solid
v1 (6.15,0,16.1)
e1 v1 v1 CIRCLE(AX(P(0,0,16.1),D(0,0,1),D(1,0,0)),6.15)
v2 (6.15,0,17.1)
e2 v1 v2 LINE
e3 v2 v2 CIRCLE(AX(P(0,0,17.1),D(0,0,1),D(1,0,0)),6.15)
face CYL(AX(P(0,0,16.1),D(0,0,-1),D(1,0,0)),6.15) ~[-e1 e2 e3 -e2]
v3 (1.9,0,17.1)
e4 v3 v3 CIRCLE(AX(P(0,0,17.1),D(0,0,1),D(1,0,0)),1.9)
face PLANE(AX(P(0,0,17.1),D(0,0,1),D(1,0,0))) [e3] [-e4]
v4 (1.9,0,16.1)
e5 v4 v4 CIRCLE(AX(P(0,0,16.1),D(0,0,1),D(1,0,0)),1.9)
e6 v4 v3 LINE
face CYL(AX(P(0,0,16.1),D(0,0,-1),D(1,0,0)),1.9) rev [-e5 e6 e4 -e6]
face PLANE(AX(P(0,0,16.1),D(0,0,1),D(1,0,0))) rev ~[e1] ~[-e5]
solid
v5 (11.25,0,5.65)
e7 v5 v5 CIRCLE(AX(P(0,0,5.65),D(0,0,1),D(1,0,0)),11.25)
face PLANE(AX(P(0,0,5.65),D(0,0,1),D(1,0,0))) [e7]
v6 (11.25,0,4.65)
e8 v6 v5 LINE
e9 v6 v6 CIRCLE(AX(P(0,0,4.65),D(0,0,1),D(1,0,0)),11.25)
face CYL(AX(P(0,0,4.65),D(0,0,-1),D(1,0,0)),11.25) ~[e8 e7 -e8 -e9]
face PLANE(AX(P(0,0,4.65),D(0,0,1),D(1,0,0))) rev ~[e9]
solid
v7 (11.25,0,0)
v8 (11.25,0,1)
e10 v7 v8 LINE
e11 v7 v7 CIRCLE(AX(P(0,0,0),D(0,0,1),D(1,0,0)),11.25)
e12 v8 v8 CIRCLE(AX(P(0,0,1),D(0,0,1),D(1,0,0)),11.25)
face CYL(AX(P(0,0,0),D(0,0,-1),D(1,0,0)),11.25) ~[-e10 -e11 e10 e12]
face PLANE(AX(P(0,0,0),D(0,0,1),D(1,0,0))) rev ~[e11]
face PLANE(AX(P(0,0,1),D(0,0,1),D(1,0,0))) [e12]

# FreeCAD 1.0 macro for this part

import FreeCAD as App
import Part
import Sketcher
Q = App.Units.Quantity

doc = App.newDocument("Part")
body = doc.addObject("PartDesign::Body", "Body")

sketch1 = body.newObject("Sketcher::SketchObject", "Sketch")
sketch1.AttachmentSupport = (doc.getObject("XY_Plane"), [""])
sketch1.MapMode = "FlatFace"
sketch1.addGeometry(Part.Circle(App.Vector(0, 0, 0), App.Vector(0, 0, 1), 11), False)
sketch1.addConstraint([
    Sketcher.Constraint("Coincident", 0, 3, -1, 1),
    Sketcher.Constraint("Diameter", 0, Q("22.5 mm")),
])
pad1 = body.newObject("PartDesign::Pad", "Pad")
pad1.Profile = sketch1
pad1.Length = 1
body2 = doc.addObject("PartDesign::Body", "Body001")

sketch2 = body2.newObject("Sketcher::SketchObject", "Sketch001")
sketch2.AttachmentSupport = (doc.getObject("XY_Plane001"), [""])
sketch2.MapMode = "FlatFace"
sketch2.AttachmentOffset = App.Placement(App.Vector(0, 0, 4.65), App.Rotation())
sketch2.addGeometry(Part.Circle(App.Vector(0, 0, 0), App.Vector(0, 0, 1), 11), False)
sketch2.addConstraint([
    Sketcher.Constraint("Coincident", 0, 3, -1, 1),
    Sketcher.Constraint("Diameter", 0, Q("22.5 mm")),
])
pad2 = body2.newObject("PartDesign::Pad", "Pad001")
pad2.Profile = sketch2
pad2.Length = 1
body3 = doc.addObject("PartDesign::Body", "Body002")

sketch3 = body3.newObject("Sketcher::SketchObject", "Sketch002")
sketch3.AttachmentSupport = (doc.getObject("XY_Plane002"), [""])
sketch3.MapMode = "FlatFace"
sketch3.AttachmentOffset = App.Placement(App.Vector(0, 0, 16.1), App.Rotation())
sketch3.addGeometry([
    Part.Circle(App.Vector(0, 0, 0), App.Vector(0, 0, 1), 6.2),
    Part.Circle(App.Vector(0, 0, 0), App.Vector(0, 0, 1), 1.9),
], False)
sketch3.addConstraint([
    Sketcher.Constraint("Coincident", 0, 3, -1, 1),
    Sketcher.Constraint("Coincident", 1, 3, -1, 1),
    Sketcher.Constraint("Diameter", 0, Q("12.3 mm")),
    Sketcher.Constraint("Diameter", 1, Q("3.8 mm")),
])
pad3 = body3.newObject("PartDesign::Pad", "Pad002")
pad3.Profile = sketch3
pad3.Length = 1

doc.recompute()
